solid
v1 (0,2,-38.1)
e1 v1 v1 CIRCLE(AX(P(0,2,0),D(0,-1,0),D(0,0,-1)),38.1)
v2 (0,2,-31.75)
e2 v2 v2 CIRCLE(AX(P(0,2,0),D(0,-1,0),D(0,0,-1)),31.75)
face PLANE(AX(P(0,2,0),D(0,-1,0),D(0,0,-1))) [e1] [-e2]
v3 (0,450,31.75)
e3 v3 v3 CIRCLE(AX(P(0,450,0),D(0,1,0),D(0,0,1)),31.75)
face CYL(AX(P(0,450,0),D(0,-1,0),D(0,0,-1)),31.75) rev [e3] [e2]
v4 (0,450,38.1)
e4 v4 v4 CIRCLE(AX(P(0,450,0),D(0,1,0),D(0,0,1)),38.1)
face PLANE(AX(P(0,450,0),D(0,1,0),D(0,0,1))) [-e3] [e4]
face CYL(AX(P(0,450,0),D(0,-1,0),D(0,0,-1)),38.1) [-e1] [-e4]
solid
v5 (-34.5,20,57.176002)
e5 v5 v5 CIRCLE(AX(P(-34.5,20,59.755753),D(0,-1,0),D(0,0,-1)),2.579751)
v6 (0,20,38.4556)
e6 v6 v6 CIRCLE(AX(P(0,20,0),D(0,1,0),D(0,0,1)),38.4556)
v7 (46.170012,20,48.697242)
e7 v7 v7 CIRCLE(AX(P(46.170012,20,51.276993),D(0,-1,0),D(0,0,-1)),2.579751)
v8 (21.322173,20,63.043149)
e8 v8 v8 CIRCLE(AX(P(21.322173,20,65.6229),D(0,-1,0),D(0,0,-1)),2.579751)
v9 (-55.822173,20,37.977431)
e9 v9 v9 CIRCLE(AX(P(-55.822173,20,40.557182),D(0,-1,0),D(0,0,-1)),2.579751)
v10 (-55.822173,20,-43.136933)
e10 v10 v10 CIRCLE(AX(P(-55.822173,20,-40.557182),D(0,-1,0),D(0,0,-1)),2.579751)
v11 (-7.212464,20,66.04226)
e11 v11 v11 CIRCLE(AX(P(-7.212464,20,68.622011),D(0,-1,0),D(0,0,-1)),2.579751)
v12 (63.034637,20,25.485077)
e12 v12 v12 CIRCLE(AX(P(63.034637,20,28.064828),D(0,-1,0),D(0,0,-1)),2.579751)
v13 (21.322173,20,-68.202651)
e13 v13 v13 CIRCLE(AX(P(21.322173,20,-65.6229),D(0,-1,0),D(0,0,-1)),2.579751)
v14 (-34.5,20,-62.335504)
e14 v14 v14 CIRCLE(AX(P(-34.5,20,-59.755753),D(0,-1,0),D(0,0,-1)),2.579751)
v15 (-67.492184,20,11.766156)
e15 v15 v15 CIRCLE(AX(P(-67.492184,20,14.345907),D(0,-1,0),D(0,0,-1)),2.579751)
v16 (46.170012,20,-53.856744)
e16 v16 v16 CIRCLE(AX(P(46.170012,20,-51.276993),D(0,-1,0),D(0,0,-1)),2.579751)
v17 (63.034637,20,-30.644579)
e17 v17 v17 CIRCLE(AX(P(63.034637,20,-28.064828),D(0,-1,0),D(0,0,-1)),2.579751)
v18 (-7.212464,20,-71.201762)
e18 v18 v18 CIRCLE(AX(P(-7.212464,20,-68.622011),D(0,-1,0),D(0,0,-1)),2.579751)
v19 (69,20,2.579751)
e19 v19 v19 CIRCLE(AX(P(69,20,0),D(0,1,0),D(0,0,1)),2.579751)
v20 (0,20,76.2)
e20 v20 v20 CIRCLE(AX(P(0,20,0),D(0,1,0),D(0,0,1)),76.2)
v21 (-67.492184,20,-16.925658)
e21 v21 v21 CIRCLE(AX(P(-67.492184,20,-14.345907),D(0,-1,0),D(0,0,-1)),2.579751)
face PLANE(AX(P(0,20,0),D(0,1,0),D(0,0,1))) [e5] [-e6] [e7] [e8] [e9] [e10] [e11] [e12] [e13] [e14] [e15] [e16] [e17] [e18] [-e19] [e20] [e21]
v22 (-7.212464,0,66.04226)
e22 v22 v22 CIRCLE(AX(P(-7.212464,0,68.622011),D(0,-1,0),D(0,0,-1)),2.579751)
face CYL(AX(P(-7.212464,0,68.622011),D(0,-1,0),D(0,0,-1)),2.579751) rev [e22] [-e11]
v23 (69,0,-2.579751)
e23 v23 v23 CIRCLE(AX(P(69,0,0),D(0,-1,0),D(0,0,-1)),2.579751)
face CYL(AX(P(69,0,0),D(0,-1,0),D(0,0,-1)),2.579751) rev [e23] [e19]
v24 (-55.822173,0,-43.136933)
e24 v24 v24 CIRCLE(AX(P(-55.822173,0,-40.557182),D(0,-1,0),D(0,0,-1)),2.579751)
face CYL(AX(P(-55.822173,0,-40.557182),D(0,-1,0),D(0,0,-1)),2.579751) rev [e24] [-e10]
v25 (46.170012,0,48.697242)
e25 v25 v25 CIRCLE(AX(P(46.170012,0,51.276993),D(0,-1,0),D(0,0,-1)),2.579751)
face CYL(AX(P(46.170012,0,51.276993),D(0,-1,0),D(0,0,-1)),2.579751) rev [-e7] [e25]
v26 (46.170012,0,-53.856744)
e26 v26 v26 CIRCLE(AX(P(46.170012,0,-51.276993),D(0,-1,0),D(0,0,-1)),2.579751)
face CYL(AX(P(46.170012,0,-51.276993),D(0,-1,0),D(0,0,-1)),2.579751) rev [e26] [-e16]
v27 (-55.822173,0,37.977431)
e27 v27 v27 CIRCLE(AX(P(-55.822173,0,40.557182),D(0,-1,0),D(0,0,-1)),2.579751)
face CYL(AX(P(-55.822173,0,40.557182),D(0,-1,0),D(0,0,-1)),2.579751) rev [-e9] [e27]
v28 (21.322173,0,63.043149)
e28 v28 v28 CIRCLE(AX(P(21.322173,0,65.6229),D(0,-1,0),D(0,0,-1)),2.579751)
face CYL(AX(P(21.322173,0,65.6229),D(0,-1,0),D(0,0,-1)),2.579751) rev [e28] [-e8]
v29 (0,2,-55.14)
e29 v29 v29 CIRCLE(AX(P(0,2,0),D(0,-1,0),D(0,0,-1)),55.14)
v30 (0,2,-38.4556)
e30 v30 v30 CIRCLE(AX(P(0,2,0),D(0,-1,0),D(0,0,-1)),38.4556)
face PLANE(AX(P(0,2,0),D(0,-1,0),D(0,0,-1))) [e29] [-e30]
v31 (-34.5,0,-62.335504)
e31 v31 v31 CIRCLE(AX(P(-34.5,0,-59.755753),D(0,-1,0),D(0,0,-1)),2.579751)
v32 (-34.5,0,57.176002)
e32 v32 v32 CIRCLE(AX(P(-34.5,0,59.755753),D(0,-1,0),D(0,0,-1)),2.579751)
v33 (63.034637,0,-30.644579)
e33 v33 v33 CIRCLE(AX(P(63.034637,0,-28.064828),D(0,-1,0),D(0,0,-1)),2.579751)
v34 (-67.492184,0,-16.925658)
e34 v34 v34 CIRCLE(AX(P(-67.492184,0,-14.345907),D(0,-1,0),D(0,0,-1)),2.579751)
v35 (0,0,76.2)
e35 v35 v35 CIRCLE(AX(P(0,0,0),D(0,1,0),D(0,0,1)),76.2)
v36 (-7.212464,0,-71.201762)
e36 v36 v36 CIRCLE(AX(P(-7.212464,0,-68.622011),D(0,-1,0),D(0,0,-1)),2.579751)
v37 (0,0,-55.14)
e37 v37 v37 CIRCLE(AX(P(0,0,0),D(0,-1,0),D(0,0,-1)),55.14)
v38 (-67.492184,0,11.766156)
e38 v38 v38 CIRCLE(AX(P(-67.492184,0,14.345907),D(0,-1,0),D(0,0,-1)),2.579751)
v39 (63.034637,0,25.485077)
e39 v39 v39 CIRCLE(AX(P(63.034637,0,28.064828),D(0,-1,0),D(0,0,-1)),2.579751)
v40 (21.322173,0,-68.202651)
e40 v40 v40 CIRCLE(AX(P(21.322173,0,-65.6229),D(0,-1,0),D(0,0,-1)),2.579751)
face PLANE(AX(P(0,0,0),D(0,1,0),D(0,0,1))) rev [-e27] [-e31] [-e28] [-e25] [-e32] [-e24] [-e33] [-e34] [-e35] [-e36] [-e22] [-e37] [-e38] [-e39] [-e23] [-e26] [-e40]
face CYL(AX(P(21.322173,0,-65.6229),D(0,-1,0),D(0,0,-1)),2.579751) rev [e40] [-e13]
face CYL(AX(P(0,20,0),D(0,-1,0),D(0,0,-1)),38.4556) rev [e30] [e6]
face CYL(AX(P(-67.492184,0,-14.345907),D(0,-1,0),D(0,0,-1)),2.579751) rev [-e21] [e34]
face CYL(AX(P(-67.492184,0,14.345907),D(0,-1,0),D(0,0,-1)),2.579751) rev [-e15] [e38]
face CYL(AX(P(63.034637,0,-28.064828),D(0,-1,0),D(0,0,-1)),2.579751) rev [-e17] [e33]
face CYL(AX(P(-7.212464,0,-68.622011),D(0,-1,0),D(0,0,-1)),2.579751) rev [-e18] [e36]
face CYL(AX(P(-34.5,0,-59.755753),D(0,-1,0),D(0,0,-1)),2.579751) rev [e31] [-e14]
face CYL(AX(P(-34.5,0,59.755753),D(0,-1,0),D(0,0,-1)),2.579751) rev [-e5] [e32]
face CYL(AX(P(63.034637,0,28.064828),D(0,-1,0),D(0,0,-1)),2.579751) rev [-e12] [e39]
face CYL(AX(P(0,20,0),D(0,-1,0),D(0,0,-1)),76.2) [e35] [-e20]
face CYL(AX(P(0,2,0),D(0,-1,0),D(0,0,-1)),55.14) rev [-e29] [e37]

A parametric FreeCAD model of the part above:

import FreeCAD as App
import Part
import Sketcher

V = App.Vector
Q = App.Units.Quantity


def add_polygon(sketch, points):
    """Adds a closed chain of lines whose ends are joined by coincident constraints."""
    first, n = sketch.GeometryCount, len(points)
    for a, b in zip(points, points[1:] + points[:1]):
        sketch.addGeometry(Part.LineSegment(App.Vector(*a, 0), App.Vector(*b, 0)), False)
    for i in range(n):
        sketch.addConstraint(Sketcher.Constraint("Coincident", first + i, 2, first + (i + 1) % n, 1))

doc = App.newDocument("Part")
body = doc.addObject("PartDesign::Body", "Body")

sketch1 = doc.addObject("Sketcher::SketchObject", "Sketch")
body.addObject(sketch1)
sketch1.AttachmentSupport = (doc.XZ_Plane, [""])
sketch1.MapMode = "FlatFace"
sketch1.addGeometry([
    Part.Circle(V(0, 0, 0), V(0, 0, 1), 38.1),
    Part.Circle(V(0, 0, 0), V(0, 0, 1), 31.75),
], False)
sketch1.addConstraint([
    Sketcher.Constraint("Coincident", 0, 3, -1, 1),
    Sketcher.Constraint("Coincident", 1, 3, -1, 1),
    Sketcher.Constraint("Diameter", 0, Q("3 in")),
    Sketcher.Constraint("Diameter", 1, Q("2.5 in")),
])
pad1 = doc.addObject("PartDesign::Pad", "Pad")
body.addObject(pad1)
pad1.Profile = sketch1
pad1.Length = 450
pad1.Reversed = True
body2 = doc.addObject("PartDesign::Body", "Body001")

sketch2 = doc.addObject("Sketcher::SketchObject", "Sketch001")
body2.addObject(sketch2)
sketch2.AttachmentSupport = (doc.getObject("XZ_Plane001"), [""])
sketch2.MapMode = "FlatFace"
sketch2.addGeometry([
    Part.Circle(V(0, 0, 0), V(0, 0, 1), 76.2),
    Part.Circle(V(0, 0, 0), V(0, 0, 1), 38.4556),
], False)
sketch2.addConstraint([
    Sketcher.Constraint("Coincident", 0, 3, -1, 1),
    Sketcher.Constraint("Coincident", 1, 3, -1, 1),
    Sketcher.Constraint("Diameter", 0, Q("6 in")),
    Sketcher.Constraint("Diameter", 1, Q("3.028 in")),
])
pad2 = doc.addObject("PartDesign::Pad", "Pad001")
body2.addObject(pad2)
pad2.Profile = sketch2
pad2.Length = 20
pad2.Reversed = True

sketch3 = doc.addObject("Sketcher::SketchObject", "Sketch002")
body2.addObject(sketch3)
sketch3.AttachmentSupport = (doc.getObject("YZ_Plane001"), [""])
sketch3.MapMode = "FlatFace"
sketch3.AttachmentOffset = App.Placement(V(0, 0, 69), App.Rotation())
add_polygon(sketch3, [(450, 0), (0, 0), (0, -2.579751), (450, -2.579751)])
sketch3.addConstraint([
    Sketcher.Constraint("Horizontal", 0),
    Sketcher.Constraint("Vertical", 1),
    Sketcher.Constraint("Horizontal", 2),
    Sketcher.Constraint("Vertical", 3),
    Sketcher.Constraint("Coincident", 0, 2, -1, 1),
    Sketcher.Constraint("DistanceX", 0, 2, 0, 1, 450.0),
    Sketcher.Constraint("DistanceY", 1, 2, 1, 1, 2.579751),
])
groove = doc.addObject("PartDesign::Groove", "Groove")
body2.addObject(groove)
groove.Profile = sketch3
groove.ReferenceAxis = (sketch3, ["H_Axis"])
groove.Angle = 360
doc.recompute()

polarpattern = doc.addObject("PartDesign::PolarPattern", "PolarPattern")
body2.addObject(polarpattern)
polarpattern.Originals = [groove]
polarpattern.Axis = (doc.getObject("Y_Axis001"), [""])
polarpattern.Angle = 360
polarpattern.Occurrences = 15
body2.Tip = polarpattern
body3 = doc.addObject("PartDesign::Body", "Body002")

sketch4 = doc.addObject("Sketcher::SketchObject", "Sketch003")
body3.addObject(sketch4)
sketch4.AttachmentSupport = (doc.getObject("XZ_Plane002"), [""])
sketch4.MapMode = "FlatFace"
sketch4.addGeometry(Part.Circle(V(0, 0, 0), V(0, 0, 1), 55.14), False)
sketch4.addConstraint([
    Sketcher.Constraint("Coincident", 0, 3, -1, 1),
    Sketcher.Constraint("Diameter", 0, 110.28),
])
pad3 = doc.addObject("PartDesign::Pad", "Pad002")
body3.addObject(pad3)
pad3.Profile = sketch4
pad3.Length = 2
pad3.Reversed = True
doc.recompute()

body4 = doc.addObject("PartDesign::Body", "Body003")
body4.BaseFeature = body3
boolean = doc.addObject("PartDesign::Boolean", "Boolean")
body.addObject(boolean)
boolean.Type = "Cut"
boolean.addObjects([body4])
doc.recompute()

boolean2 = doc.addObject("PartDesign::Boolean", "Boolean001")
body2.addObject(boolean2)
boolean2.Type = "Cut"
boolean2.addObjects([body3])

doc.recompute()
